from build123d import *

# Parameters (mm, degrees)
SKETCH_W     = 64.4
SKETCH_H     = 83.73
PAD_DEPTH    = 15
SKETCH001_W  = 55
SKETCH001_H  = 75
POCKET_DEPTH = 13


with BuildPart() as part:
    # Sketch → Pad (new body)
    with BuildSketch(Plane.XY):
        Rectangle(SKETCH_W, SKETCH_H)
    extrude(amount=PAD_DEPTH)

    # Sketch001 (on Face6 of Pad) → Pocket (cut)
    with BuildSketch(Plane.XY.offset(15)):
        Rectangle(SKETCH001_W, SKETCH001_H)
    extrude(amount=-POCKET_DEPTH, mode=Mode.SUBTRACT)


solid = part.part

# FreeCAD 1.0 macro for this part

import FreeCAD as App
import Part
import Sketcher
from FreeCAD import Vector
Q = App.Units.Quantity

doc = App.newDocument("Part")
body = doc.addObject("PartDesign::Body", "Body")

# Sketch on XY plane
sketch1 = body.newObject("Sketcher::SketchObject", "Sketch")
sketch1.AttachmentSupport = (doc.getObject("XY_Plane"), [""])
sketch1.MapMode = "FlatFace"
sketch1.addGeometry(Part.LineSegment(Vector(-32, 42, 0), Vector(-32, -42, 0)), False)
sketch1.addGeometry(Part.LineSegment(Vector(-32, -42, 0), Vector(32, -42, 0)), False)
sketch1.addGeometry(Part.LineSegment(Vector(32, -42, 0), Vector(32, 42, 0)), False)
sketch1.addGeometry(Part.LineSegment(Vector(32, 42, 0), Vector(-32, 42, 0)), False)
sketch1.addConstraint(Sketcher.Constraint("Coincident", 0, 2, 1, 1))
sketch1.addConstraint(Sketcher.Constraint("Coincident", 1, 2, 2, 1))
sketch1.addConstraint(Sketcher.Constraint("Coincident", 2, 2, 3, 1))
sketch1.addConstraint(Sketcher.Constraint("Coincident", 3, 2, 0, 1))
sketch1.addConstraint(Sketcher.Constraint("Vertical", 0))
sketch1.addConstraint(Sketcher.Constraint("Horizontal", 1))
sketch1.addConstraint(Sketcher.Constraint("Vertical", 2))
sketch1.addConstraint(Sketcher.Constraint("Horizontal", 3))
sketch1.addConstraint(Sketcher.Constraint("Symmetric", 0, 2, 2, 2, -1, 1))
sketch1.addConstraint(Sketcher.Constraint("DistanceX", 1, 1, 1, 2, Q("64.4 mm")))
sketch1.addConstraint(Sketcher.Constraint("DistanceY", 0, 2, 0, 1, Q("83.73 mm")))
pad1 = body.newObject("PartDesign::Pad", "Pad")
pad1.Profile = sketch1
pad1.Length = 15

# Sketch on XY plane
sketch2 = body.newObject("Sketcher::SketchObject", "Sketch001")
sketch2.AttachmentSupport = (doc.getObject("XY_Plane"), [""])
sketch2.MapMode = "FlatFace"
sketch2.AttachmentOffset = App.Placement(Vector(0, 0, 15), App.Rotation())
sketch2.addGeometry(Part.LineSegment(Vector(-28, 38, 0), Vector(-28, -38, 0)), False)
sketch2.addGeometry(Part.LineSegment(Vector(-28, -38, 0), Vector(28, -38, 0)), False)
sketch2.addGeometry(Part.LineSegment(Vector(28, -38, 0), Vector(28, 38, 0)), False)
sketch2.addGeometry(Part.LineSegment(Vector(28, 38, 0), Vector(-28, 38, 0)), False)
sketch2.addConstraint(Sketcher.Constraint("Coincident", 0, 2, 1, 1))
sketch2.addConstraint(Sketcher.Constraint("Coincident", 1, 2, 2, 1))
sketch2.addConstraint(Sketcher.Constraint("Coincident", 2, 2, 3, 1))
sketch2.addConstraint(Sketcher.Constraint("Coincident", 3, 2, 0, 1))
sketch2.addConstraint(Sketcher.Constraint("Vertical", 0))
sketch2.addConstraint(Sketcher.Constraint("Horizontal", 1))
sketch2.addConstraint(Sketcher.Constraint("Vertical", 2))
sketch2.addConstraint(Sketcher.Constraint("Horizontal", 3))
sketch2.addConstraint(Sketcher.Constraint("Symmetric", 0, 2, 2, 2, -1, 1))
sketch2.addConstraint(Sketcher.Constraint("DistanceX", 1, 1, 1, 2, Q("55 mm")))
sketch2.addConstraint(Sketcher.Constraint("DistanceY", 0, 2, 0, 1, Q("75 mm")))
pocket1 = body.newObject("PartDesign::Pocket", "Pocket")
pocket1.Profile = sketch2
pocket1.Length = 13

doc.recompute()
